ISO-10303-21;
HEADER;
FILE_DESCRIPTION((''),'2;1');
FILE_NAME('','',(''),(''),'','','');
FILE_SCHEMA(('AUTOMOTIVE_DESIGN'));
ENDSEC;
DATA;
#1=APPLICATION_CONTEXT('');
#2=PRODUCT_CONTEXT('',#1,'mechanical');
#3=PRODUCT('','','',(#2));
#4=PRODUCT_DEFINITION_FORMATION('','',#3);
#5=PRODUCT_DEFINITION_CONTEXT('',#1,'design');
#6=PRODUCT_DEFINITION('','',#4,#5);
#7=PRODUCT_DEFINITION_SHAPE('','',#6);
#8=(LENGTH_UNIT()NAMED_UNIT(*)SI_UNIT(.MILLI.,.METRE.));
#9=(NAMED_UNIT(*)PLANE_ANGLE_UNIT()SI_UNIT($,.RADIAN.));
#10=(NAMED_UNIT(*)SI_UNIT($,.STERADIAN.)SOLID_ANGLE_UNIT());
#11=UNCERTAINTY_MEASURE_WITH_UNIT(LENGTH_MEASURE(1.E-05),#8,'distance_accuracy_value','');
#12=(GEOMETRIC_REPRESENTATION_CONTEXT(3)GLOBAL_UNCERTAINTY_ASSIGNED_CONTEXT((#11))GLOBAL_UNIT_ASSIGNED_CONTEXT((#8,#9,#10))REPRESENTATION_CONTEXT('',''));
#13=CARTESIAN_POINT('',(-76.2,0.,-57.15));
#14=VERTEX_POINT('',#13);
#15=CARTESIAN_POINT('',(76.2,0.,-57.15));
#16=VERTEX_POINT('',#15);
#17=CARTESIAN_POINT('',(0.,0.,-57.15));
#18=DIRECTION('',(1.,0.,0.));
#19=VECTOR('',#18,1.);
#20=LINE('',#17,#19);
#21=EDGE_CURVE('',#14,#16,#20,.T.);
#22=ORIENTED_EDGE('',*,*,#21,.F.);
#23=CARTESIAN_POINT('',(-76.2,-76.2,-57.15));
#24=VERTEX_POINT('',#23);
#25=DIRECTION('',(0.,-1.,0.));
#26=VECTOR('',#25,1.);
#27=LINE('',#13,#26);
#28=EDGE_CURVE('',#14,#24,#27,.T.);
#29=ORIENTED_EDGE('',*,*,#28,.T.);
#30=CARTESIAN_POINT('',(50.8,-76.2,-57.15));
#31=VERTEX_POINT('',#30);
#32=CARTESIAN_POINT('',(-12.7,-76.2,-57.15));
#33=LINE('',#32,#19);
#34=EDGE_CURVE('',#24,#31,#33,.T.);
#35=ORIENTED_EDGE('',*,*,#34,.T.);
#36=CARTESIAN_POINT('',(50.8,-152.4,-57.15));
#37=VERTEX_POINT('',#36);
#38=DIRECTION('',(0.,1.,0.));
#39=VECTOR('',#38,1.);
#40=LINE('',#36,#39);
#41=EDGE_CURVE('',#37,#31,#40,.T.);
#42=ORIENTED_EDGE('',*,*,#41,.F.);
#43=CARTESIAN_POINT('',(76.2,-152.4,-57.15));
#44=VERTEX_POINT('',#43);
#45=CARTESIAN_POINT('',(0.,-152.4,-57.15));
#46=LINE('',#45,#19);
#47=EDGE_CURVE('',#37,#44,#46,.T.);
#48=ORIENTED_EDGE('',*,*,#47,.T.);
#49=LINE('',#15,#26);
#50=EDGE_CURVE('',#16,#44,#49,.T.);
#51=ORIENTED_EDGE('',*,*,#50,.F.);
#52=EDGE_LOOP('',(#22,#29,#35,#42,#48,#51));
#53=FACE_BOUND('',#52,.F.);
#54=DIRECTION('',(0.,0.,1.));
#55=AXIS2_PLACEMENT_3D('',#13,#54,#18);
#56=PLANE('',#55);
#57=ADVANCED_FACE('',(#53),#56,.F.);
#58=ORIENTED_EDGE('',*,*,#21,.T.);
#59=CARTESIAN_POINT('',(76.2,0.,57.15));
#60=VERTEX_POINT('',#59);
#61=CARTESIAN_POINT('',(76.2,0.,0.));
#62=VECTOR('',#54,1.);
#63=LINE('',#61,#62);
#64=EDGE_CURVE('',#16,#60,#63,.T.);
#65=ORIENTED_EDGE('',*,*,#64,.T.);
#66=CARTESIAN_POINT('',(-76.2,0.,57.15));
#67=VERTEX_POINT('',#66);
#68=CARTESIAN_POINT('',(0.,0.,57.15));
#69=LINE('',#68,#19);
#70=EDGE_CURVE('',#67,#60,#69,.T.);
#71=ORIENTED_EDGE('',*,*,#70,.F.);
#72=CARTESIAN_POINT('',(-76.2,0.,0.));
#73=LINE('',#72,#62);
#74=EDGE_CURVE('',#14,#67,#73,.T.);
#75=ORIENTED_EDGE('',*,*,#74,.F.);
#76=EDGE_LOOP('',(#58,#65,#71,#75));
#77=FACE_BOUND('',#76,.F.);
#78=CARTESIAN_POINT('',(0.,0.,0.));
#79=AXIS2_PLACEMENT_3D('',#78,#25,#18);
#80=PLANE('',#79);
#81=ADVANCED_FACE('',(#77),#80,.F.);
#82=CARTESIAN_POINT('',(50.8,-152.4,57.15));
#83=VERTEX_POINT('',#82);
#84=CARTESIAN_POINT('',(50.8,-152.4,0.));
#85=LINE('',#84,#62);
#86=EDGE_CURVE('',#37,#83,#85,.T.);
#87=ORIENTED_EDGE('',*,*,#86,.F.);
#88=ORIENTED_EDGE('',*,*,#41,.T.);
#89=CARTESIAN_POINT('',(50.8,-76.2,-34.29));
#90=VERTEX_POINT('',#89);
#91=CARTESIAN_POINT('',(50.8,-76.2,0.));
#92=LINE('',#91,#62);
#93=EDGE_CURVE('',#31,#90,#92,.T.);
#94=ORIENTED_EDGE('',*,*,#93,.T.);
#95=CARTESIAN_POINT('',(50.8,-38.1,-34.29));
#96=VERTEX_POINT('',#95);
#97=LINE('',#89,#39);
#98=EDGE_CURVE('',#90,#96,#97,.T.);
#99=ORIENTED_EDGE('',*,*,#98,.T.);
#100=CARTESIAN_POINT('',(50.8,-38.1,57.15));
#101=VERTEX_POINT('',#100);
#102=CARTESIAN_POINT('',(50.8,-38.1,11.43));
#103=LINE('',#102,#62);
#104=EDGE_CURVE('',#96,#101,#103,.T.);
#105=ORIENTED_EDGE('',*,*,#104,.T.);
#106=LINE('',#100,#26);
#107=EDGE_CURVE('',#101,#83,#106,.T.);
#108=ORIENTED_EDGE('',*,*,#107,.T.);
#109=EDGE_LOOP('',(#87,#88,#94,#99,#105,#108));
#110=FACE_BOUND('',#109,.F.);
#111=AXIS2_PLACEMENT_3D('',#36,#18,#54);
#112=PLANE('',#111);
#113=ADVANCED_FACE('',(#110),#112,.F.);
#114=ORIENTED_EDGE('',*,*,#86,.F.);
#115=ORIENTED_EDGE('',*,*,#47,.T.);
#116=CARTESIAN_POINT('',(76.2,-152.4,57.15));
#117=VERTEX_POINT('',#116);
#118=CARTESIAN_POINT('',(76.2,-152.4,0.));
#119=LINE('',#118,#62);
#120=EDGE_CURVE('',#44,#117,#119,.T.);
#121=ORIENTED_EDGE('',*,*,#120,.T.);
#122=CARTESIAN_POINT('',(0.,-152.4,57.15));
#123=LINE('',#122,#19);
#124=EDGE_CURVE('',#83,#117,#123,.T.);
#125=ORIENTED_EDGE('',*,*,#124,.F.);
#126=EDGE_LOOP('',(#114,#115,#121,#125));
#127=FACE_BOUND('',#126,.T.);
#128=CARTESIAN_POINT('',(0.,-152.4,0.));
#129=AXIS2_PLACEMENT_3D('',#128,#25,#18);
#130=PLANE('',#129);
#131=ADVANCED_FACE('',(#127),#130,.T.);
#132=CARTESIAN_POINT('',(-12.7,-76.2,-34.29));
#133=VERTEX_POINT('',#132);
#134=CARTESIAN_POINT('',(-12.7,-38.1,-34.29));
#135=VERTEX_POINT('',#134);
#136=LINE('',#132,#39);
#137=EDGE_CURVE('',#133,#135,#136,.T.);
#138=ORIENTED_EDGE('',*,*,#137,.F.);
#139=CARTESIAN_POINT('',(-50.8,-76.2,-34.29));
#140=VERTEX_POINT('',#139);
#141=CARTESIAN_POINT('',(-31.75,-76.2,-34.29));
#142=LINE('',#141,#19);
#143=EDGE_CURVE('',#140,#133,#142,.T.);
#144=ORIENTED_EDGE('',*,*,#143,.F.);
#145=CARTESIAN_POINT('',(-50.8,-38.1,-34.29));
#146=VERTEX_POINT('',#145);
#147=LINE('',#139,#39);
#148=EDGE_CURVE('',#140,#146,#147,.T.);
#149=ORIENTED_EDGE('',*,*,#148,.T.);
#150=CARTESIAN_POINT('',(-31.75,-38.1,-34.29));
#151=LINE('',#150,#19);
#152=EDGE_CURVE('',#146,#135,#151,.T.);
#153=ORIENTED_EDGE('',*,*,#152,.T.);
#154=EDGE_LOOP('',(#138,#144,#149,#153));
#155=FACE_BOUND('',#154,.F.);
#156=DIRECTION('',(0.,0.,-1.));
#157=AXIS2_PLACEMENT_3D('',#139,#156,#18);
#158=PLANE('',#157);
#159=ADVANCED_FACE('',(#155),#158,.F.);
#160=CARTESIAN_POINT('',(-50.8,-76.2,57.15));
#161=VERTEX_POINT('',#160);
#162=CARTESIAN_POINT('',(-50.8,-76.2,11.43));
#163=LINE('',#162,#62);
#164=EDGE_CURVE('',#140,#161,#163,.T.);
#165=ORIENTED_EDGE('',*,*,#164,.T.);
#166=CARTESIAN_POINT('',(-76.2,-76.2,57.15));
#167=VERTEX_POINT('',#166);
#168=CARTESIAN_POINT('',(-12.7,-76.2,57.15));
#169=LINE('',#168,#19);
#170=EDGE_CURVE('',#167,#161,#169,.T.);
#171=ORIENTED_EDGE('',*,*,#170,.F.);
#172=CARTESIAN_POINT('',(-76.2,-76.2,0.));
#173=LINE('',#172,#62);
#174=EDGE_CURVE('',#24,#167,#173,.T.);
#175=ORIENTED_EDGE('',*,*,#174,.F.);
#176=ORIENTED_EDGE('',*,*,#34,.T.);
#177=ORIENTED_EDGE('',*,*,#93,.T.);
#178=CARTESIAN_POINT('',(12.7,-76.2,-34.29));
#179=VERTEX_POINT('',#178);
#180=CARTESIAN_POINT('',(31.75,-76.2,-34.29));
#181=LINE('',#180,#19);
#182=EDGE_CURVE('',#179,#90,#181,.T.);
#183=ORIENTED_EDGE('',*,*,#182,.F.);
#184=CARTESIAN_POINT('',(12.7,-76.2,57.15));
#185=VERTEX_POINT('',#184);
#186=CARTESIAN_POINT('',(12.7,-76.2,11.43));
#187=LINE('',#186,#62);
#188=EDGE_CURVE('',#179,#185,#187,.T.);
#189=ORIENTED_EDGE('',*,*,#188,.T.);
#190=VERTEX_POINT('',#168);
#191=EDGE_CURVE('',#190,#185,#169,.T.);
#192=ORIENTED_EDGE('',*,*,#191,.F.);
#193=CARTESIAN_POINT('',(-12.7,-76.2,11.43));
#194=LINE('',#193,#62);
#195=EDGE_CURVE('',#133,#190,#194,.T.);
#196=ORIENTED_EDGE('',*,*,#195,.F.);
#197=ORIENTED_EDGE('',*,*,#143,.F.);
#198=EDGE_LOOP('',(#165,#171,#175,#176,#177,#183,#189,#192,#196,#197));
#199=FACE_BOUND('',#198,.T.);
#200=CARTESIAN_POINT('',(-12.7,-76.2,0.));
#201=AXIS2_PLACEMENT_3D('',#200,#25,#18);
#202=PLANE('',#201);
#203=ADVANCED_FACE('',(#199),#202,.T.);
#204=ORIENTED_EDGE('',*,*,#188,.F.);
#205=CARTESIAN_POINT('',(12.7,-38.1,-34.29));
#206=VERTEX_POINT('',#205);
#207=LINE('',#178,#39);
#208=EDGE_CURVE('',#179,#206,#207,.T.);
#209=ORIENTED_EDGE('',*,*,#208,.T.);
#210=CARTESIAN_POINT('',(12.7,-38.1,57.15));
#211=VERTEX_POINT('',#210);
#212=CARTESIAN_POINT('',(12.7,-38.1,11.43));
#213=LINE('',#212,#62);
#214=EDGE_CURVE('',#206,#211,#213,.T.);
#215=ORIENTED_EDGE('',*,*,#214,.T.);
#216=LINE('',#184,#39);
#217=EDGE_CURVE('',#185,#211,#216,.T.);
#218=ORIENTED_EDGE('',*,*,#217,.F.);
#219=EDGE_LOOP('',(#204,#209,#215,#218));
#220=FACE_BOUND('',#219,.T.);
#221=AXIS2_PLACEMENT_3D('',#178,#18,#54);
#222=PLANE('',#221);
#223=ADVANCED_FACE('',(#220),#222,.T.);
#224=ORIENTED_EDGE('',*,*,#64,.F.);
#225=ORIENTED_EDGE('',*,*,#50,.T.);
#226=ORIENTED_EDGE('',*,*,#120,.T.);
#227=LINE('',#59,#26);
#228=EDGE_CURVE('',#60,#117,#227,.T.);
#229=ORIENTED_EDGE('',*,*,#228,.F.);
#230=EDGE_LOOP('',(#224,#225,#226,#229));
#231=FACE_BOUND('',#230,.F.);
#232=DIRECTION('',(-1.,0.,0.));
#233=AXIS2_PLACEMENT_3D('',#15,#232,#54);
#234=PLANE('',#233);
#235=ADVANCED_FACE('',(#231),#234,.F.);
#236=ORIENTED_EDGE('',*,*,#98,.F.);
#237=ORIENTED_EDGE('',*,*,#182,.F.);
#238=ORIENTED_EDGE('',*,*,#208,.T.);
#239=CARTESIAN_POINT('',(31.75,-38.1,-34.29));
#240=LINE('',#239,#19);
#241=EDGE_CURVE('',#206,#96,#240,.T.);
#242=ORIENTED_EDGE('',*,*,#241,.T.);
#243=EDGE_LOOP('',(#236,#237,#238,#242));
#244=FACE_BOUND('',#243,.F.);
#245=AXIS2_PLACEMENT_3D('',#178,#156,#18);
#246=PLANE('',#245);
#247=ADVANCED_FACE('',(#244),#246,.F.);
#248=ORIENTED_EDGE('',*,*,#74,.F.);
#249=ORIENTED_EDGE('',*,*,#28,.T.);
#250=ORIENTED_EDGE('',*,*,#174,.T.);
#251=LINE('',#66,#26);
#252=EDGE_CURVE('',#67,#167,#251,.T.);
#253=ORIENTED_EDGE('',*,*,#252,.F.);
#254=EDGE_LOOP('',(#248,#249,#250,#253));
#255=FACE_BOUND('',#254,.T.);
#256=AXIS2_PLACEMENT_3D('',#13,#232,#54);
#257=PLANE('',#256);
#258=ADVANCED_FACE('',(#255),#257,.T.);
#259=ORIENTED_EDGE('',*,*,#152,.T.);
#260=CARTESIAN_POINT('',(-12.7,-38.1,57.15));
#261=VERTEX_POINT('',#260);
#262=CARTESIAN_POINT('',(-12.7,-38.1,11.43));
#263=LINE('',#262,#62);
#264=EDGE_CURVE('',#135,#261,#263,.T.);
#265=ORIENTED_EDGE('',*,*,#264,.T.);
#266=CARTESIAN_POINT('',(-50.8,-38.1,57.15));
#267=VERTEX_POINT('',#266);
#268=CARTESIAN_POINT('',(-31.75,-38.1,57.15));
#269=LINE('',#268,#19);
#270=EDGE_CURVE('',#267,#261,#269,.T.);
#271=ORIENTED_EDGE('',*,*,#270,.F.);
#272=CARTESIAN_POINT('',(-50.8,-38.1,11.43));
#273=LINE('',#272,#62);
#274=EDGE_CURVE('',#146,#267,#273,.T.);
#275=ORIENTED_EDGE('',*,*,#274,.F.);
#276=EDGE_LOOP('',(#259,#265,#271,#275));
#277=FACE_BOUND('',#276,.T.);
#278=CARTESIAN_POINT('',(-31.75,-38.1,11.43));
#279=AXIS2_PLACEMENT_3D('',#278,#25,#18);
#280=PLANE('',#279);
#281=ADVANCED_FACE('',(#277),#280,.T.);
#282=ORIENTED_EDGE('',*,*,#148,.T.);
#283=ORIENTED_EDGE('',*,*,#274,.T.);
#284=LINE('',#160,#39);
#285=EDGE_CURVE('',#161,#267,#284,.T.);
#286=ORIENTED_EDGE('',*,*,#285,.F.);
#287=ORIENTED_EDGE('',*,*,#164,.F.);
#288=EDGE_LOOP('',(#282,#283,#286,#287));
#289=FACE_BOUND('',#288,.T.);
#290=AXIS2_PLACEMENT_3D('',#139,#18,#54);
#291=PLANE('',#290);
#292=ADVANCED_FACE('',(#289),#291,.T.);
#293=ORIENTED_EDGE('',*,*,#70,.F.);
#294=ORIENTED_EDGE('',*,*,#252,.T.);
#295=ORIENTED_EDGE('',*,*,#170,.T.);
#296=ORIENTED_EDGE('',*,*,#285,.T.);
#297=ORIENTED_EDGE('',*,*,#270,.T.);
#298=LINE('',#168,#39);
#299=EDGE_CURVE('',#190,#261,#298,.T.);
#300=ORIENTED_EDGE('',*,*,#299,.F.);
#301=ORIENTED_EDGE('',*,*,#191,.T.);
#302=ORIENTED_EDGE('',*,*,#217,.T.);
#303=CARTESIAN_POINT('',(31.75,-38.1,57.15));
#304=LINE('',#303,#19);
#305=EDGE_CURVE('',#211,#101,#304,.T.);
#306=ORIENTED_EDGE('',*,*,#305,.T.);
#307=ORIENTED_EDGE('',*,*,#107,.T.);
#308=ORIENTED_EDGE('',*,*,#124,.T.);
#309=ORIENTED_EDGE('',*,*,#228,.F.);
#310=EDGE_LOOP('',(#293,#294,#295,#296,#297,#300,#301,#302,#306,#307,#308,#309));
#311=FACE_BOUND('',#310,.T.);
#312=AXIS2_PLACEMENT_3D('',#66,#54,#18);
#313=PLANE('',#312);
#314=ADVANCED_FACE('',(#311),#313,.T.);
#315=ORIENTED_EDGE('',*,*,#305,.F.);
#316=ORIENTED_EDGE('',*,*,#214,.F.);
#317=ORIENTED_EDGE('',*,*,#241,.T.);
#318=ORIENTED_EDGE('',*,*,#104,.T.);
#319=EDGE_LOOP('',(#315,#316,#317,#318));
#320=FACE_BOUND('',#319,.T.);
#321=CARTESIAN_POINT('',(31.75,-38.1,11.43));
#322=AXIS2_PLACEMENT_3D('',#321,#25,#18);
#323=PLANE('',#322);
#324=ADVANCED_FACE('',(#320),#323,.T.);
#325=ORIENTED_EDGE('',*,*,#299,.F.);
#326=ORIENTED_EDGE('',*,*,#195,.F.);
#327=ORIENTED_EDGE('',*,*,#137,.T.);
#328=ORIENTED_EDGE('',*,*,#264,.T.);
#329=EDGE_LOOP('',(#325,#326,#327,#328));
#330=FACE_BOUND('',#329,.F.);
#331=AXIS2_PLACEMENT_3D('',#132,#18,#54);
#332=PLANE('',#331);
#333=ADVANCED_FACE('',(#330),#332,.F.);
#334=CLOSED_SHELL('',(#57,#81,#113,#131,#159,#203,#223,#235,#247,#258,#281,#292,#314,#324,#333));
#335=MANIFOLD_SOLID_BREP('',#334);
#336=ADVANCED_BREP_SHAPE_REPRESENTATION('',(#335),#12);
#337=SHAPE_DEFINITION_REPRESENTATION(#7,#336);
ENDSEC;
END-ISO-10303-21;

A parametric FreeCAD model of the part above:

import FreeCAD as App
import Part
import Sketcher
from FreeCAD import Vector
Q = App.Units.Quantity

doc = App.newDocument("Part")
body = doc.addObject("PartDesign::Body", "Body")

# Sketch on XZ plane
sketch1 = body.newObject("Sketcher::SketchObject", "Sketch")
sketch1.AttachmentSupport = (doc.getObject("XZ_Plane"), [""])
sketch1.MapMode = "FlatFace"
sketch1.addGeometry(Part.LineSegment(Vector(-76, 57, 0), Vector(-76, -57, 0)), False)
sketch1.addGeometry(Part.LineSegment(Vector(-76, -57, 0), Vector(76, -57, 0)), False)
sketch1.addGeometry(Part.LineSegment(Vector(76, -57, 0), Vector(76, 57, 0)), False)
sketch1.addGeometry(Part.LineSegment(Vector(76, 57, 0), Vector(-76, 57, 0)), False)
sketch1.addConstraint(Sketcher.Constraint("Coincident", 0, 2, 1, 1))
sketch1.addConstraint(Sketcher.Constraint("Coincident", 1, 2, 2, 1))
sketch1.addConstraint(Sketcher.Constraint("Coincident", 2, 2, 3, 1))
sketch1.addConstraint(Sketcher.Constraint("Coincident", 3, 2, 0, 1))
sketch1.addConstraint(Sketcher.Constraint("Vertical", 0))
sketch1.addConstraint(Sketcher.Constraint("Horizontal", 1))
sketch1.addConstraint(Sketcher.Constraint("Vertical", 2))
sketch1.addConstraint(Sketcher.Constraint("Horizontal", 3))
sketch1.addConstraint(Sketcher.Constraint("Symmetric", 0, 2, 2, 2, -1, 1))
sketch1.addConstraint(Sketcher.Constraint("DistanceX", 1, 1, 1, 2, Q("6 in")))
sketch1.addConstraint(Sketcher.Constraint("DistanceY", 0, 2, 0, 1, Q("4.5 in")))
pad1 = body.newObject("PartDesign::Pad", "Pad")
pad1.Profile = sketch1
pad1.Length = Q("6 in")

# Sketch on XZ plane
sketch2 = body.newObject("Sketcher::SketchObject", "Sketch001")
sketch2.AttachmentSupport = (doc.getObject("XZ_Plane"), [""])
sketch2.MapMode = "FlatFace"
sketch2.AttachmentOffset = App.Placement(Vector(0, 0, 6 * 25.4), App.Rotation())
sketch2.addGeometry(Part.LineSegment(Vector(-76, 57, 0), Vector(-76, -57, 0)), False)
sketch2.addGeometry(Part.LineSegment(Vector(-76, -57, 0), Vector(51, -57, 0)), False)
sketch2.addGeometry(Part.LineSegment(Vector(51, -57, 0), Vector(51, 57, 0)), False)
sketch2.addGeometry(Part.LineSegment(Vector(51, 57, 0), Vector(-76, 57, 0)), False)
sketch2.addConstraint(Sketcher.Constraint("Coincident", 0, 2, 1, 1))
sketch2.addConstraint(Sketcher.Constraint("Coincident", 1, 2, 2, 1))
sketch2.addConstraint(Sketcher.Constraint("Coincident", 2, 2, 3, 1))
sketch2.addConstraint(Sketcher.Constraint("Coincident", 3, 2, 0, 1))
sketch2.addConstraint(Sketcher.Constraint("Vertical", 0))
sketch2.addConstraint(Sketcher.Constraint("Horizontal", 1))
sketch2.addConstraint(Sketcher.Constraint("Vertical", 2))
sketch2.addConstraint(Sketcher.Constraint("Horizontal", 3))
sketch2.addConstraint(Sketcher.Constraint("DistanceX", 1, 1, 1, 2, Q("5 in")))
sketch2.addConstraint(Sketcher.Constraint("DistanceY", 0, 2, 0, 1, Q("4.5 in")))
sketch2.addConstraint(Sketcher.Constraint("DistanceX", 0, 2, -1, 1, Q("3 in")))
sketch2.addConstraint(Sketcher.Constraint("DistanceY", 0, 2, -1, 1, Q("2.25 in")))
pocket1 = body.newObject("PartDesign::Pocket", "Pocket")
pocket1.Profile = sketch2
pocket1.Length = Q("3 in")

# Sketch on XZ plane
sketch3 = body.newObject("Sketcher::SketchObject", "Sketch002")
sketch3.AttachmentSupport = (doc.getObject("XZ_Plane"), [""])
sketch3.MapMode = "FlatFace"
sketch3.AttachmentOffset = App.Placement(Vector(0, 0, 3 * 25.4), App.Rotation())
sketch3.addGeometry(Part.LineSegment(Vector(-51, 57, 0), Vector(-51, -34, 0)), False)
sketch3.addGeometry(Part.LineSegment(Vector(-51, -34, 0), Vector(-13, -34, 0)), False)
sketch3.addGeometry(Part.LineSegment(Vector(-13, -34, 0), Vector(-13, 57, 0)), False)
sketch3.addGeometry(Part.LineSegment(Vector(-13, 57, 0), Vector(-51, 57, 0)), False)
sketch3.addConstraint(Sketcher.Constraint("Coincident", 0, 2, 1, 1))
sketch3.addConstraint(Sketcher.Constraint("Coincident", 1, 2, 2, 1))
sketch3.addConstraint(Sketcher.Constraint("Coincident", 2, 2, 3, 1))
sketch3.addConstraint(Sketcher.Constraint("Coincident", 3, 2, 0, 1))
sketch3.addConstraint(Sketcher.Constraint("Vertical", 0))
sketch3.addConstraint(Sketcher.Constraint("Horizontal", 1))
sketch3.addConstraint(Sketcher.Constraint("Vertical", 2))
sketch3.addConstraint(Sketcher.Constraint("Horizontal", 3))
sketch3.addConstraint(Sketcher.Constraint("DistanceX", 1, 1, 1, 2, Q("1.5 in")))
sketch3.addConstraint(Sketcher.Constraint("DistanceY", 0, 2, 0, 1, Q("3.6 in")))
sketch3.addConstraint(Sketcher.Constraint("DistanceX", 0, 2, -1, 1, Q("2 in")))
sketch3.addConstraint(Sketcher.Constraint("DistanceY", 0, 2, -1, 1, Q("1.35 in")))
pocket2 = body.newObject("PartDesign::Pocket", "Pocket001")
pocket2.Profile = sketch3
pocket2.Length = Q("1.5 in")

# Sketch on XZ plane
sketch4 = body.newObject("Sketcher::SketchObject", "Sketch003")
sketch4.AttachmentSupport = (doc.getObject("XZ_Plane"), [""])
sketch4.MapMode = "FlatFace"
sketch4.AttachmentOffset = App.Placement(Vector(0, 0, 3 * 25.4), App.Rotation())
sketch4.addGeometry(Part.LineSegment(Vector(13, 57, 0), Vector(13, -34, 0)), False)
sketch4.addGeometry(Part.LineSegment(Vector(13, -34, 0), Vector(51, -34, 0)), False)
sketch4.addGeometry(Part.LineSegment(Vector(51, -34, 0), Vector(51, 57, 0)), False)
sketch4.addGeometry(Part.LineSegment(Vector(51, 57, 0), Vector(13, 57, 0)), False)
sketch4.addConstraint(Sketcher.Constraint("Coincident", 0, 2, 1, 1))
sketch4.addConstraint(Sketcher.Constraint("Coincident", 1, 2, 2, 1))
sketch4.addConstraint(Sketcher.Constraint("Coincident", 2, 2, 3, 1))
sketch4.addConstraint(Sketcher.Constraint("Coincident", 3, 2, 0, 1))
sketch4.addConstraint(Sketcher.Constraint("Vertical", 0))
sketch4.addConstraint(Sketcher.Constraint("Horizontal", 1))
sketch4.addConstraint(Sketcher.Constraint("Vertical", 2))
sketch4.addConstraint(Sketcher.Constraint("Horizontal", 3))
sketch4.addConstraint(Sketcher.Constraint("DistanceX", 1, 1, 1, 2, Q("1.5 in")))
sketch4.addConstraint(Sketcher.Constraint("DistanceY", 0, 2, 0, 1, Q("3.6 in")))
sketch4.addConstraint(Sketcher.Constraint("DistanceX", -1, 1, 1, 2, Q("2 in")))
sketch4.addConstraint(Sketcher.Constraint("DistanceY", 0, 2, -1, 1, Q("1.35 in")))
pocket3 = body.newObject("PartDesign::Pocket", "Pocket002")
pocket3.Profile = sketch4
pocket3.Length = Q("1.5 in")

doc.recompute()
